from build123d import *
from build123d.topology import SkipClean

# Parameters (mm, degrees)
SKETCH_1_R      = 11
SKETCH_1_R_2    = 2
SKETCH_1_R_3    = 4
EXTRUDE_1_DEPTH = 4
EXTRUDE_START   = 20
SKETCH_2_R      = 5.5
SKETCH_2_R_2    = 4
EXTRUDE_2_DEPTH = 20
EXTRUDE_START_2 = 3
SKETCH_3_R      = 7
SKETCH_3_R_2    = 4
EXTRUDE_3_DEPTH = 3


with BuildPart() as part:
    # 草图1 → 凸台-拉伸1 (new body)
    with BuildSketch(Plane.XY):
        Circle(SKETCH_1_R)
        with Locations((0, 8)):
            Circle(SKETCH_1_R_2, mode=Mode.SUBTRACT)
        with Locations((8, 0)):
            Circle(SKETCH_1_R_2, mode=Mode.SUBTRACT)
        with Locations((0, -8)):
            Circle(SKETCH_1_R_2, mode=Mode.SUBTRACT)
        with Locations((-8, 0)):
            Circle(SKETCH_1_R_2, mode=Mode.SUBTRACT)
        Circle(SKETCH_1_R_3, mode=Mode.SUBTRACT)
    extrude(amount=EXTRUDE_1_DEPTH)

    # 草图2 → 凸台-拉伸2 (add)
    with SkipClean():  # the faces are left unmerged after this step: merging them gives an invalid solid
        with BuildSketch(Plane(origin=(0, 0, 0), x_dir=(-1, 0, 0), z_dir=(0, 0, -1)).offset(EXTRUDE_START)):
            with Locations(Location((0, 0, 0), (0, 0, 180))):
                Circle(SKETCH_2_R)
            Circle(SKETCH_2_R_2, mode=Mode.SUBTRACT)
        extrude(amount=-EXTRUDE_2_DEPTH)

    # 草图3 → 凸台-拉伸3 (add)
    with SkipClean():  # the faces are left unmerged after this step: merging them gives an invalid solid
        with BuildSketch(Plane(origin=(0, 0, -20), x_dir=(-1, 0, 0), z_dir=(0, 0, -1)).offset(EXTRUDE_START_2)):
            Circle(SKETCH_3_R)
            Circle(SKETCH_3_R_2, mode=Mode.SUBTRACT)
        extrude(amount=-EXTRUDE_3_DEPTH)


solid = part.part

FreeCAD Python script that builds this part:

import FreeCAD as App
import Part
import Sketcher
from FreeCAD import Vector
Q = App.Units.Quantity

doc = App.newDocument("Part")
body = doc.addObject("PartDesign::Body", "Body")

sketch1 = body.newObject("Sketcher::SketchObject", "Sketch")
sketch1.AttachmentSupport = (doc.getObject("XY_Plane"), [""])
sketch1.MapMode = "FlatFace"
sketch1.addGeometry([
    Part.Circle(Vector(0, 0, 0), Vector(0, 0, 1), 11),
    Part.Circle(Vector(0, -8, 0), Vector(0, 0, 1), 2),
    Part.Circle(Vector(-8, 0, 0), Vector(0, 0, 1), 2),
    Part.Circle(Vector(0, 0, 0), Vector(0, 0, 1), 4),
    Part.Circle(Vector(8, 0, 0), Vector(0, 0, 1), 2),
    Part.Circle(Vector(0, 8, 0), Vector(0, 0, 1), 2),
], False)
sketch1.addConstraint([
    Sketcher.Constraint("Coincident", 0, 3, -1, 1),
    Sketcher.Constraint("Coincident", 3, 3, -1, 1),
    Sketcher.Constraint("Equal", 1, 2),
    Sketcher.Constraint("Equal", 2, 4),
    Sketcher.Constraint("Equal", 4, 5),
    Sketcher.Constraint("Symmetric", 2, 3, 4, 3, -1, 1),
    Sketcher.Constraint("Symmetric", 1, 3, 5, 3, -1, 1),
    Sketcher.Constraint("PointOnObject", 1, 3, -2),
    Sketcher.Constraint("PointOnObject", 2, 3, -1),
    Sketcher.Constraint("Diameter", 0, Q("22 mm")),
    Sketcher.Constraint("Diameter", 1, Q("4 mm")),
    Sketcher.Constraint("Diameter", 3, Q("8 mm")),
    Sketcher.Constraint("DistanceY", 1, 3, -1, 1, Q("8 mm")),
    Sketcher.Constraint("DistanceX", 2, 3, -1, 1, Q("8 mm")),
])
pad1 = body.newObject("PartDesign::Pad", "Pad")
pad1.Profile = sketch1
pad1.Length = 4

sketch2 = body.newObject("Sketcher::SketchObject", "Sketch001")
sketch2.AttachmentSupport = (doc.getObject("XY_Plane"), [""])
sketch2.MapMode = "FlatFace"
sketch2.AttachmentOffset = App.Placement(Vector(0, 0, -20), App.Rotation())
sketch2.addGeometry([
    Part.Circle(Vector(0, 0, 0), Vector(0, 0, 1), 5.5),
    Part.Circle(Vector(0, 0, 0), Vector(0, 0, 1), 4),
], False)
sketch2.addConstraint([
    Sketcher.Constraint("Coincident", 0, 3, -1, 1),
    Sketcher.Constraint("Coincident", 1, 3, -1, 1),
    Sketcher.Constraint("Diameter", 0, Q("11 mm")),
    Sketcher.Constraint("Diameter", 1, Q("8 mm")),
])
pad2 = body.newObject("PartDesign::Pad", "Pad001")
pad2.Profile = sketch2
pad2.Length = 20

sketch3 = body.newObject("Sketcher::SketchObject", "Sketch002")
sketch3.AttachmentSupport = (doc.getObject("XY_Plane"), [""])
sketch3.MapMode = "FlatFace"
sketch3.AttachmentOffset = App.Placement(Vector(0, 0, -23), App.Rotation())
sketch3.addGeometry([
    Part.Circle(Vector(0, 0, 0), Vector(0, 0, 1), 7),
    Part.Circle(Vector(0, 0, 0), Vector(0, 0, 1), 4),
], False)
sketch3.addConstraint([
    Sketcher.Constraint("Coincident", 0, 3, -1, 1),
    Sketcher.Constraint("Coincident", 1, 3, -1, 1),
    Sketcher.Constraint("Diameter", 0, Q("14 mm")),
    Sketcher.Constraint("Diameter", 1, Q("8 mm")),
])
pad3 = body.newObject("PartDesign::Pad", "Pad002")
pad3.Profile = sketch3
pad3.Length = 3

doc.recompute()
